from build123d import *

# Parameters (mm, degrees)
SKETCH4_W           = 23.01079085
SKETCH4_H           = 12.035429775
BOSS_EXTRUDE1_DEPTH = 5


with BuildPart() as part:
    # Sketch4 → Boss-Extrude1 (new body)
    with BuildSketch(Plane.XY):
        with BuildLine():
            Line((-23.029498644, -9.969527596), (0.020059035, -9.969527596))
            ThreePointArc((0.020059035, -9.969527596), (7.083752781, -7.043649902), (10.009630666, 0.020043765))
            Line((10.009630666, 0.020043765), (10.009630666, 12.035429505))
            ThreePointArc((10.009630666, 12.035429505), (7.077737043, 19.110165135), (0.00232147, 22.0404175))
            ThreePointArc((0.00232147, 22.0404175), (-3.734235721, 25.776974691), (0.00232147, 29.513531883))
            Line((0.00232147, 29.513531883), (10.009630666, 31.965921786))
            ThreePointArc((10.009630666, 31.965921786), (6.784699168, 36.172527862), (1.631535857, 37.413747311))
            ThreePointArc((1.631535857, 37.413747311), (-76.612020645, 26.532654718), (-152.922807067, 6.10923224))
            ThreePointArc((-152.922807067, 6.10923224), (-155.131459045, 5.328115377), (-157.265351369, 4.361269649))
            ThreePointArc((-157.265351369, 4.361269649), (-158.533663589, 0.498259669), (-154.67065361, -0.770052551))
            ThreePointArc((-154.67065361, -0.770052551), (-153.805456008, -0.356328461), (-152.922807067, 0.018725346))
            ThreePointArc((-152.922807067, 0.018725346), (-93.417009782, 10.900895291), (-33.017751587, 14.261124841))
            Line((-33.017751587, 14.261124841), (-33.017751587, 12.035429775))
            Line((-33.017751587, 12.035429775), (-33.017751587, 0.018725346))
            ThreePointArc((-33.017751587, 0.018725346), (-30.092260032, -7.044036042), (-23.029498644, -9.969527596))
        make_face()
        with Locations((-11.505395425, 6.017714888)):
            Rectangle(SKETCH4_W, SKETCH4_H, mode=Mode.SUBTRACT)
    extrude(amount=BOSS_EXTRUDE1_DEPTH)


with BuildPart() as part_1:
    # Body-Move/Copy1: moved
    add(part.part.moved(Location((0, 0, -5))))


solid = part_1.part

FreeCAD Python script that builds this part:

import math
import FreeCAD as App
import Part
import Sketcher
Q = App.Units.Quantity

doc = App.newDocument("Part")
body = doc.addObject("PartDesign::Body", "Body")

sketch1 = body.newObject("Sketcher::SketchObject", "Sketch")
sketch1.AttachmentSupport = (doc.getObject("XY_Plane"), [""])
sketch1.MapMode = "FlatFace"
sketch1.addGeometry([
    Part.LineSegment(App.Vector(-23, -10, 0), App.Vector(0, -10, 0)),
    Part.ArcOfCircle(Part.Circle(App.Vector(0, 0, 0), App.Vector(0, 0, 1), 10), math.radians(-90), math.radians(0)),
    Part.LineSegment(App.Vector(10, 0, 0), App.Vector(10, 12, 0)),
    Part.ArcOfCircle(Part.Circle(App.Vector(0, 12, 0), App.Vector(0, 0, 1), 10), math.radians(0), math.radians(90)),
    Part.ArcOfCircle(Part.Circle(App.Vector(0, 25.8, 0), App.Vector(0, 0, 1), 3.7), math.radians(90), math.radians(270)),
    Part.LineSegment(App.Vector(0, 29.5, 0), App.Vector(10, 32, 0)),
    Part.ArcOfCircle(Part.Circle(App.Vector(2.5, 29.5, 0), App.Vector(0, 0, 1), 7.9), math.radians(18), math.radians(96)),
    Part.ArcOfCircle(Part.Circle(App.Vector(50.6, -601.7, 0), App.Vector(0, 0, 1), 641), math.radians(94.38), math.radians(108.52)),
    Part.ArcOfCircle(Part.Circle(App.Vector(-144.9, -20.1, 0), App.Vector(0, 0, 1), 27.4), math.radians(107.03), math.radians(116.82)),
    Part.ArcOfCircle(Part.Circle(App.Vector(-156, 1.8, 0), App.Vector(0, 0, 1), 2.9), math.radians(117), math.radians(297)),
    Part.ArcOfCircle(Part.Circle(App.Vector(-144.9, -20.1, 0), App.Vector(0, 0, 1), 21.7), math.radians(111.75), math.radians(116.82)),
    Part.ArcOfCircle(Part.Circle(App.Vector(-36.4, -468.8, 0), App.Vector(0, 0, 1), 483.1), math.radians(89.59), math.radians(103.95)),
    Part.LineSegment(App.Vector(-33, 14.3, 0), App.Vector(-33, 0, 0)),
    Part.ArcOfCircle(Part.Circle(App.Vector(-23, 0, 0), App.Vector(0, 0, 1), 10), math.radians(180), math.radians(270)),
    Part.LineSegment(App.Vector(0, 0, 0), App.Vector(-23, 0, 0)),
    Part.LineSegment(App.Vector(-23, 0, 0), App.Vector(-23, 12, 0)),
    Part.LineSegment(App.Vector(-23, 12, 0), App.Vector(0, 12, 0)),
    Part.LineSegment(App.Vector(0, 12, 0), App.Vector(0, 0, 0)),
], False)
sketch1.addConstraint([
    Sketcher.Constraint("Tangent", 0, 2, 1, 1),
    Sketcher.Constraint("Tangent", 1, 2, 2, 1),
    Sketcher.Constraint("Coincident", 2, 2, 3, 1),
    Sketcher.Constraint("Tangent", 3, 2, 4, 2),
    Sketcher.Constraint("Coincident", 4, 1, 5, 1),
    Sketcher.Constraint("Coincident", 5, 2, 6, 1),
    Sketcher.Constraint("Coincident", 6, 2, 7, 1),
    Sketcher.Constraint("Coincident", 7, 2, 8, 1),
    Sketcher.Constraint("Tangent", 8, 2, 9, 1),
    Sketcher.Constraint("Tangent", 9, 2, 10, 2),
    Sketcher.Constraint("Coincident", 10, 1, 11, 2),
    Sketcher.Constraint("Coincident", 11, 1, 12, 1),
    Sketcher.Constraint("Tangent", 12, 2, 13, 1),
    Sketcher.Constraint("Tangent", 13, 2, 0, 1),
    Sketcher.Constraint("Coincident", 14, 2, 15, 1),
    Sketcher.Constraint("Coincident", 15, 2, 16, 1),
    Sketcher.Constraint("Coincident", 16, 2, 17, 1),
    Sketcher.Constraint("Coincident", 17, 2, 14, 1),
    Sketcher.Constraint("Horizontal", 0),
    Sketcher.Constraint("Vertical", 2),
    Sketcher.Constraint("Vertical", 12),
    Sketcher.Constraint("Horizontal", 14),
    Sketcher.Constraint("Vertical", 15),
    Sketcher.Constraint("Horizontal", 16),
    Sketcher.Constraint("Vertical", 17),
    Sketcher.Constraint("Coincident", 17, 2, -1, 1),
    Sketcher.Constraint("Horizontal", 6, 3, 4, 1),
    Sketcher.Constraint("Horizontal", 13, 3, 10, 1),
    Sketcher.Constraint("Horizontal", 2, 2, 15, 2),
    Sketcher.Constraint("Vertical", 3, 3, 4, 3),
    Sketcher.Constraint("Vertical", 3, 2, 4, 1),
    Sketcher.Constraint("Vertical", 2, 2, 5, 2),
    Sketcher.Constraint("Vertical", 7, 2, 10, 1),
    Sketcher.Constraint("Radius", 1, Q("9.989572 mm")),
    Sketcher.Constraint("Radius", 3, Q("10.007309 mm")),
    Sketcher.Constraint("Radius", 9, Q("2.875018 mm")),
    Sketcher.Constraint("Radius", 10, Q("21.678712 mm")),
    Sketcher.Constraint("Radius", 11, Q("483.095672 mm")),
    Sketcher.Constraint("DistanceY", 12, 2, 12, 1, Q("14.242399 mm")),
    Sketcher.Constraint("Radius", 4, Q("3.736557 mm")),
    Sketcher.Constraint("Radius", 6, Q("7.942986 mm")),
    Sketcher.Constraint("Radius", 7, Q("640.960114 mm")),
    Sketcher.Constraint("Radius", 8, Q("27.412593 mm")),
    Sketcher.Constraint("Radius", 13, Q("9.988253 mm")),
    Sketcher.Constraint("DistanceX", 14, 2, 14, 1, Q("23.010791 mm")),
    Sketcher.Constraint("DistanceY", 15, 1, 15, 2, Q("12.03543 mm")),
    Sketcher.Constraint("DistanceX", 13, 3, -1, 1, Q("23.029499 mm")),
    Sketcher.Constraint("DistanceY", 7, 3, 6, 3, Q("631.184399 mm")),
    Sketcher.Constraint("DistanceY", 9, 3, 3, 3, Q("10.237499 mm")),
    Sketcher.Constraint("Distance", 5, Q("10.30342 mm")),
    Sketcher.Constraint("DistanceX", 0, 1, 0, 2, Q("23.049558 mm")),
    Sketcher.Constraint("DistanceY", 2, 1, 2, 2, Q("12.015386 mm")),
    Sketcher.Constraint("DistanceY", -1, 1, 3, 3, Q("12.033108 mm")),
    Sketcher.Constraint("DistanceX", 8, 3, -1, 1, Q("144.895449 mm")),
    Sketcher.Constraint("DistanceX", 10, 3, -1, 1, Q("144.888159 mm")),
    Sketcher.Constraint("DistanceX", 11, 3, -1, 1, Q("36.435162 mm")),
])
pad1 = body.newObject("PartDesign::Pad", "Pad")
pad1.Profile = sketch1
pad1.Length = 5
body2 = doc.addObject("PartDesign::Body", "Body001")
doc.recompute()

body.Placement = App.Placement(App.Vector(0, 0, -5), App.Rotation(App.Vector(0, 0, 1), 0))
boolean = body2.newObject("PartDesign::Boolean", "Boolean")
boolean.Type = "Fuse"
boolean.addObjects([body])

doc.recompute()
